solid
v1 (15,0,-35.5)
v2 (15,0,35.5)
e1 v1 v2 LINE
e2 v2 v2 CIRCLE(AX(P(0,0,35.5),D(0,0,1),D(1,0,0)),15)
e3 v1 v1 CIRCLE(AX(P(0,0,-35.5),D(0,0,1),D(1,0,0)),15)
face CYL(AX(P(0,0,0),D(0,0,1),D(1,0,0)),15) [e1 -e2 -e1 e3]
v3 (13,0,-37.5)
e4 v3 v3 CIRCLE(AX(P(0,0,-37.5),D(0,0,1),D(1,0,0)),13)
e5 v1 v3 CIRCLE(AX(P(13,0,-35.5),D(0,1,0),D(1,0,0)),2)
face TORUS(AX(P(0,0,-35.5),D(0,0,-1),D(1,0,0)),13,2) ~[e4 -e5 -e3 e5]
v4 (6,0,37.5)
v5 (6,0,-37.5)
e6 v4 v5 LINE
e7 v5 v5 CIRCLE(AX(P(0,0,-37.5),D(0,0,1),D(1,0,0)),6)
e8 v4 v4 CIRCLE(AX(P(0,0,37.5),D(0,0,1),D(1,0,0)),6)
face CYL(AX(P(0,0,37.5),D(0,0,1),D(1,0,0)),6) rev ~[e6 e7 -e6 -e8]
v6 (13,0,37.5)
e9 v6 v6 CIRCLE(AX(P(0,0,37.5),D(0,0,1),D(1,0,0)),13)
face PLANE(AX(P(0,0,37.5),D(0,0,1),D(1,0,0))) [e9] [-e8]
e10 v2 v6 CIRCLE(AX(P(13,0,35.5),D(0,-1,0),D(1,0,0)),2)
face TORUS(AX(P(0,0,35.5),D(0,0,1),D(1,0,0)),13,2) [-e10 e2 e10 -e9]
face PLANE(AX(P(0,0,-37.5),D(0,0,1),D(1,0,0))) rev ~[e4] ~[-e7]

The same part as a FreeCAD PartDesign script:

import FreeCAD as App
import Part
import Sketcher
from FreeCAD import Vector


def edges_at(feature, points):
    """Names of the edges that pass closest to the given points."""
    edges = feature.Shape.Edges
    near = lambda p: min(range(len(edges)), key=lambda i: edges[i].distToShape(Part.Vertex(*p))[0])
    return sorted({f"Edge{near(p) + 1}" for p in points})

doc = App.newDocument("Part")
body = doc.addObject("PartDesign::Body", "Body")

sketch1 = doc.addObject("Sketcher::SketchObject", "Sketch")
body.addObject(sketch1)
sketch1.AttachmentSupport = (doc.XY_Plane, [""])
sketch1.MapMode = "FlatFace"
sketch1.addGeometry(Part.Circle(Vector(0, 0, 0), Vector(0, 0, 1), 15), False)
sketch1.addConstraint([
    Sketcher.Constraint("Coincident", 0, 3, -1, 1),
    Sketcher.Constraint("Diameter", 0, 30.0),
])
pad1 = doc.addObject("PartDesign::Pad", "Pad")
body.addObject(pad1)
pad1.Profile = sketch1
pad1.Length = 75
pad1.Midplane = True
doc.recompute()

fillet = doc.addObject("PartDesign::Fillet", "Fillet")
body.addObject(fillet)
fillet.Base = (pad1, edges_at(pad1, [(-15, 0, 37.5), (-15, 0, -37.5)]))
fillet.Radius = 2

sketch2 = doc.addObject("Sketcher::SketchObject", "Sketch001")
body.addObject(sketch2)
sketch2.AttachmentSupport = (doc.XY_Plane, [""])
sketch2.MapMode = "FlatFace"
sketch2.AttachmentOffset = App.Placement(Vector(0, 0, 37.5), App.Rotation())
sketch2.addGeometry(Part.Circle(Vector(0, 0, 0), Vector(0, 0, 1), 6), False)
sketch2.addConstraint([
    Sketcher.Constraint("Coincident", 0, 3, -1, 1),
    Sketcher.Constraint("Diameter", 0, 12.0),
])
pocket1 = doc.addObject("PartDesign::Pocket", "Pocket")
body.addObject(pocket1)
pocket1.Profile = sketch2
pocket1.Type = "ThroughAll"

doc.recompute()
